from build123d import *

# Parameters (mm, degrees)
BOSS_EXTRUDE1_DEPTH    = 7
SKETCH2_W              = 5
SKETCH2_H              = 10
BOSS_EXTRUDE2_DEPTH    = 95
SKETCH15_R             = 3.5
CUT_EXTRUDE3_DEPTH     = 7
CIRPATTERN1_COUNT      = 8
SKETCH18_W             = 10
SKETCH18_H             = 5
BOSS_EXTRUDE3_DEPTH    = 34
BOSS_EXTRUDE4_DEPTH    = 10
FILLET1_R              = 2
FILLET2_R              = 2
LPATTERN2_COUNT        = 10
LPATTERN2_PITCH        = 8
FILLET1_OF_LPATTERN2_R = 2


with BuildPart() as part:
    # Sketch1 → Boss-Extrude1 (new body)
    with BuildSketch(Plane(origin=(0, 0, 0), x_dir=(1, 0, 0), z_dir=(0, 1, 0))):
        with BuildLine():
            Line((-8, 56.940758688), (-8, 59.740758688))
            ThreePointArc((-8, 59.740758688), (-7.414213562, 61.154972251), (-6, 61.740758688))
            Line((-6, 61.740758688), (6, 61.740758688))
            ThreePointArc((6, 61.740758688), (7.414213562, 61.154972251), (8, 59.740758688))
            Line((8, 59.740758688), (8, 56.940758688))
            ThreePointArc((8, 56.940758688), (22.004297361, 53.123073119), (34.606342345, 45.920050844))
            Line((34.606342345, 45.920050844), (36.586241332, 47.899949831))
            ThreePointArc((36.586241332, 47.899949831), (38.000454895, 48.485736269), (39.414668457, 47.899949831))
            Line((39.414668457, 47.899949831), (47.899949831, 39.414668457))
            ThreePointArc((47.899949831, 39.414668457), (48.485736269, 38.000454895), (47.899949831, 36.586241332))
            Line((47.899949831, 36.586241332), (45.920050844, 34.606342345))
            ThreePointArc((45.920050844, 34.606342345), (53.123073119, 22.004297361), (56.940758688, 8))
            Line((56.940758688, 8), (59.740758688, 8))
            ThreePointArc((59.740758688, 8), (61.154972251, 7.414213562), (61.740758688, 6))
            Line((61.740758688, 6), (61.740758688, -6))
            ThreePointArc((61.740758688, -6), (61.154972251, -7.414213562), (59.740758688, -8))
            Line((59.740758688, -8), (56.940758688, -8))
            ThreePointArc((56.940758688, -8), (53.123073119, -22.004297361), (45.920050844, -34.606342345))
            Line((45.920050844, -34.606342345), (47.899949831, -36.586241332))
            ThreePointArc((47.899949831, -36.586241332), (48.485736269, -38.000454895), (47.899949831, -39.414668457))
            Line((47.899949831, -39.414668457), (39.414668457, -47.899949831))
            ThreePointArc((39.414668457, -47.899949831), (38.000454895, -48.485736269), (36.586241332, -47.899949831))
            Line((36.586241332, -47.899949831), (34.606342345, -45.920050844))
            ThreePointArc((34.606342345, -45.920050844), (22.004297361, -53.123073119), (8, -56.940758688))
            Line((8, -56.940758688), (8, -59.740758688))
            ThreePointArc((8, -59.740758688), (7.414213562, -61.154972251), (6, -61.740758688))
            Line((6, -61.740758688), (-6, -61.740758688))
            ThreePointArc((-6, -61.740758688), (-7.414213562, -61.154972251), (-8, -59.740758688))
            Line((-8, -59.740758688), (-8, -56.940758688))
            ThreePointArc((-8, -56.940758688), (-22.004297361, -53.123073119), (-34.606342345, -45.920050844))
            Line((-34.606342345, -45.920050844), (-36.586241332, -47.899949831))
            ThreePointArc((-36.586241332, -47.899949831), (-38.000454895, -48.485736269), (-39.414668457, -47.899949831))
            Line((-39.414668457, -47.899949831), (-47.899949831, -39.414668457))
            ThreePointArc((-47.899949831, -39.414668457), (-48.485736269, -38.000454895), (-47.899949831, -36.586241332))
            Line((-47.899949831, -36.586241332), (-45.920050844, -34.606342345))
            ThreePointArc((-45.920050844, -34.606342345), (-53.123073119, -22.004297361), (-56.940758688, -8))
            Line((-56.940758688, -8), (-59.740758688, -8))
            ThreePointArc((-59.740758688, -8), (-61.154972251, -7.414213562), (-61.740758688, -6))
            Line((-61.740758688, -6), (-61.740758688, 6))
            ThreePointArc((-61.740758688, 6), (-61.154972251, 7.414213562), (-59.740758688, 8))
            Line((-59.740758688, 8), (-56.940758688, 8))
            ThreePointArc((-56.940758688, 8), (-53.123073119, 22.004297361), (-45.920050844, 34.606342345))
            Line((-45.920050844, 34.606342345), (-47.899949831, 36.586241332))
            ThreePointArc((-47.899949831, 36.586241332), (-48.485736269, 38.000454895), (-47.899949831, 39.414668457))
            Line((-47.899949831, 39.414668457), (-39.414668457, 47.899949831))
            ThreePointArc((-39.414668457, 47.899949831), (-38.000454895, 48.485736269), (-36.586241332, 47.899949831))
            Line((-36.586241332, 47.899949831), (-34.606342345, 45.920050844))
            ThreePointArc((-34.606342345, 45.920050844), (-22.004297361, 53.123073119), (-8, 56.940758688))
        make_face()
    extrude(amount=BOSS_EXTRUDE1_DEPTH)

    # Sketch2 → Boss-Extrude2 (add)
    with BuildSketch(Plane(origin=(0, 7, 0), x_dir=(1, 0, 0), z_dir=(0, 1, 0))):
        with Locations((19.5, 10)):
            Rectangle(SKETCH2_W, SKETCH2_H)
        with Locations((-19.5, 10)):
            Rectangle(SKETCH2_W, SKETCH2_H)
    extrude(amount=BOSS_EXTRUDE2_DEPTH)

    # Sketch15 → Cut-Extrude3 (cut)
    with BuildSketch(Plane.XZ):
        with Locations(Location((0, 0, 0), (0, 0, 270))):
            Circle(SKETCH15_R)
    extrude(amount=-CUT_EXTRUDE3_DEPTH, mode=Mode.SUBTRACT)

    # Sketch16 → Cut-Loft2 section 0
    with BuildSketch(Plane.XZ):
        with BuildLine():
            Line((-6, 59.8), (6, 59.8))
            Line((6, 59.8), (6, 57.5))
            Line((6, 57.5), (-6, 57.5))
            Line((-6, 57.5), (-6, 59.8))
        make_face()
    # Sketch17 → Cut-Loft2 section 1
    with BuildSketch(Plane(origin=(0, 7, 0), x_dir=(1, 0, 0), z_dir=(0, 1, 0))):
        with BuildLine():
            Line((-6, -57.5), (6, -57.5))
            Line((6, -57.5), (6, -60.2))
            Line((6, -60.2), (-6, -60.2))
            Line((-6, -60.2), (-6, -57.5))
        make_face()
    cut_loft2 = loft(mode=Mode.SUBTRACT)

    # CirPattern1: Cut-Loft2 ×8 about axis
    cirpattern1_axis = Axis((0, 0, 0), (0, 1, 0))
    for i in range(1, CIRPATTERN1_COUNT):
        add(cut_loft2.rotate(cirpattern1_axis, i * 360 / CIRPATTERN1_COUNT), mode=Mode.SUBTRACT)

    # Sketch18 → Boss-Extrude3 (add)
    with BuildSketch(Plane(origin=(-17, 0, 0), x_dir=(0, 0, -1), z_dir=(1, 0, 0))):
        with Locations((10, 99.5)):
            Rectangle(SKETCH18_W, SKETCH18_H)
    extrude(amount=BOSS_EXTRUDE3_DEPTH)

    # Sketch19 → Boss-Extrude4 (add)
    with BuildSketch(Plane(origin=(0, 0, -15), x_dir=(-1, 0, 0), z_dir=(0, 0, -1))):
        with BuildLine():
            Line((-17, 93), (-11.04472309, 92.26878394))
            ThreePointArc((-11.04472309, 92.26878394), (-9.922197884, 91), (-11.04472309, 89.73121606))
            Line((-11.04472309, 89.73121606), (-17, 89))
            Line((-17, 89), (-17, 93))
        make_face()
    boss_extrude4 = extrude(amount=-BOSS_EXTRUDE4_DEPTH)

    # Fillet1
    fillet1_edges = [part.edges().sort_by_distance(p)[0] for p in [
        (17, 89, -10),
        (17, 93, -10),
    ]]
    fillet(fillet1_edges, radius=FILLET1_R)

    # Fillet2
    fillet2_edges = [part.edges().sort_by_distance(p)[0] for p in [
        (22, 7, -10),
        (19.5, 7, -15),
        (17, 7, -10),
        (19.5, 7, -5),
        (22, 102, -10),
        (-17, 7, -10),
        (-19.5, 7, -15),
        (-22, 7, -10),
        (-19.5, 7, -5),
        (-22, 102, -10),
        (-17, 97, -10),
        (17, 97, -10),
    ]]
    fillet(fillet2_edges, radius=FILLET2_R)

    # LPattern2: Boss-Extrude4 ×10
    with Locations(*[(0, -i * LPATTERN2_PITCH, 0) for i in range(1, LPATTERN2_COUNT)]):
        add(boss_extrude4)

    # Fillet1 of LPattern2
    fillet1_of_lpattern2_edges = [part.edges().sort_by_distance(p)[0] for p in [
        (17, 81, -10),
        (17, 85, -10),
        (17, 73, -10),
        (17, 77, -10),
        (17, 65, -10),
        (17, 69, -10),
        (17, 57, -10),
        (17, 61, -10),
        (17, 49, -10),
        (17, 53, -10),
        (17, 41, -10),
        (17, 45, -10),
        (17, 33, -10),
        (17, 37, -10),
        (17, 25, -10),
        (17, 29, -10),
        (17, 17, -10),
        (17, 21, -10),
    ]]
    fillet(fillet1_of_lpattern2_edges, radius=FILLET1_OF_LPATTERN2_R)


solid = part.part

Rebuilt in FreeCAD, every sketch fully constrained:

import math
import FreeCAD as App
import Part
import Sketcher
Q = App.Units.Quantity


def edges_at(feature, points):
    """Names of the edges that pass closest to the given points."""
    edges = feature.Shape.Edges
    near = lambda p: min(range(len(edges)), key=lambda i: edges[i].distToShape(Part.Vertex(*p))[0])
    return sorted({f"Edge{near(p) + 1}" for p in points})

doc = App.newDocument("Part")
body = doc.addObject("PartDesign::Body", "Body")

# Sketch on XZ plane
sketch1 = body.newObject("Sketcher::SketchObject", "Sketch")
sketch1.AttachmentSupport = (doc.getObject("XZ_Plane"), [""])
sketch1.MapMode = "FlatFace"
sketch1.addGeometry([
    Part.LineSegment(App.Vector(-8, -59.740759, 0), App.Vector(-8, -56.940759, 0)),  # 0
    Part.ArcOfCircle(Part.Circle(App.Vector(0, 0, 0), App.Vector(0, 0, 1), 57.5), math.radians(-127.002469), math.radians(-97.997531)),  # 1
    Part.LineSegment(App.Vector(-34.606342, -45.920051, 0), App.Vector(-36.586241, -47.89995, 0)),  # 2
    Part.ArcOfCircle(Part.Circle(App.Vector(-38.000455, -46.485736, 0), App.Vector(0, 0, 1), 2), math.radians(-135), math.radians(-45)),  # 3
    Part.LineSegment(App.Vector(-39.414668, -47.89995, 0), App.Vector(-47.89995, -39.414668, 0)),  # 4
    Part.ArcOfCircle(Part.Circle(App.Vector(-46.485736, -38.000455, 0), App.Vector(0, 0, 1), 2), math.radians(135), math.radians(225)),  # 5
    Part.LineSegment(App.Vector(-47.89995, -36.586241, 0), App.Vector(-45.920051, -34.606342, 0)),  # 6
    Part.ArcOfCircle(Part.Circle(App.Vector(0, 0, 0), App.Vector(0, 0, 1), 57.5), math.radians(-172.002469), math.radians(-142.997531)),  # 7
    Part.LineSegment(App.Vector(-56.940759, -8, 0), App.Vector(-59.740759, -8, 0)),  # 8
    Part.ArcOfCircle(Part.Circle(App.Vector(-59.740759, -6, 0), App.Vector(0, 0, 1), 2), math.radians(180), math.radians(270)),  # 9
    Part.LineSegment(App.Vector(-61.740759, -6, 0), App.Vector(-61.740759, 6, 0)),  # 10
    Part.ArcOfCircle(Part.Circle(App.Vector(-59.740759, 6, 0), App.Vector(0, 0, 1), 2), math.radians(90), math.radians(180)),  # 11
    Part.LineSegment(App.Vector(-59.740759, 8, 0), App.Vector(-56.940759, 8, 0)),  # 12
    Part.ArcOfCircle(Part.Circle(App.Vector(0, 0, 0), App.Vector(0, 0, 1), 57.5), math.radians(142.997531), math.radians(172.002469)),  # 13
    Part.LineSegment(App.Vector(-45.920051, 34.606342, 0), App.Vector(-47.89995, 36.586241, 0)),  # 14
    Part.ArcOfCircle(Part.Circle(App.Vector(-46.485736, 38.000455, 0), App.Vector(0, 0, 1), 2), math.radians(135), math.radians(225)),  # 15
    Part.LineSegment(App.Vector(-47.89995, 39.414668, 0), App.Vector(-39.414668, 47.89995, 0)),  # 16
    Part.ArcOfCircle(Part.Circle(App.Vector(-38.000455, 46.485736, 0), App.Vector(0, 0, 1), 2), math.radians(45), math.radians(135)),  # 17
    Part.LineSegment(App.Vector(-36.586241, 47.89995, 0), App.Vector(-34.606342, 45.920051, 0)),  # 18
    Part.ArcOfCircle(Part.Circle(App.Vector(0, 0, 0), App.Vector(0, 0, 1), 57.5), math.radians(97.997531), math.radians(127.002469)),  # 19
    Part.LineSegment(App.Vector(-8, 56.940759, 0), App.Vector(-8, 59.740759, 0)),  # 20
    Part.ArcOfCircle(Part.Circle(App.Vector(-6, 59.740759, 0), App.Vector(0, 0, 1), 2), math.radians(90), math.radians(180)),  # 21
    Part.LineSegment(App.Vector(-6, 61.740759, 0), App.Vector(6, 61.740759, 0)),  # 22
    Part.ArcOfCircle(Part.Circle(App.Vector(6, 59.740759, 0), App.Vector(0, 0, 1), 2), math.radians(0), math.radians(90)),  # 23
    Part.LineSegment(App.Vector(8, 59.740759, 0), App.Vector(8, 56.940759, 0)),  # 24
    Part.ArcOfCircle(Part.Circle(App.Vector(0, 0, 0), App.Vector(0, 0, 1), 57.5), math.radians(52.997531), math.radians(82.002469)),  # 25
    Part.LineSegment(App.Vector(34.606342, 45.920051, 0), App.Vector(36.586241, 47.89995, 0)),  # 26
    Part.ArcOfCircle(Part.Circle(App.Vector(38.000455, 46.485736, 0), App.Vector(0, 0, 1), 2), math.radians(45), math.radians(135)),  # 27
    Part.LineSegment(App.Vector(39.414668, 47.89995, 0), App.Vector(47.89995, 39.414668, 0)),  # 28
    Part.ArcOfCircle(Part.Circle(App.Vector(46.485736, 38.000455, 0), App.Vector(0, 0, 1), 2), math.radians(-45), math.radians(45)),  # 29
    Part.LineSegment(App.Vector(47.89995, 36.586241, 0), App.Vector(45.920051, 34.606342, 0)),  # 30
    Part.ArcOfCircle(Part.Circle(App.Vector(0, 0, 0), App.Vector(0, 0, 1), 57.5), math.radians(7.997531), math.radians(37.002469)),  # 31
    Part.LineSegment(App.Vector(56.940759, 8, 0), App.Vector(59.740759, 8, 0)),  # 32
    Part.ArcOfCircle(Part.Circle(App.Vector(59.740759, 6, 0), App.Vector(0, 0, 1), 2), math.radians(0), math.radians(90)),  # 33
    Part.LineSegment(App.Vector(61.740759, 6, 0), App.Vector(61.740759, -6, 0)),  # 34
    Part.ArcOfCircle(Part.Circle(App.Vector(59.740759, -6, 0), App.Vector(0, 0, 1), 2), math.radians(-90), math.radians(0)),  # 35
    Part.LineSegment(App.Vector(59.740759, -8, 0), App.Vector(56.940759, -8, 0)),  # 36
    Part.ArcOfCircle(Part.Circle(App.Vector(0, 0, 0), App.Vector(0, 0, 1), 57.5), math.radians(-37.002469), math.radians(-7.997531)),  # 37
    Part.LineSegment(App.Vector(45.920051, -34.606342, 0), App.Vector(47.89995, -36.586241, 0)),  # 38
    Part.ArcOfCircle(Part.Circle(App.Vector(46.485736, -38.000455, 0), App.Vector(0, 0, 1), 2), math.radians(-45), math.radians(45)),  # 39
    Part.LineSegment(App.Vector(47.89995, -39.414668, 0), App.Vector(39.414668, -47.89995, 0)),  # 40
    Part.ArcOfCircle(Part.Circle(App.Vector(38.000455, -46.485736, 0), App.Vector(0, 0, 1), 2), math.radians(-135), math.radians(-45)),  # 41
    Part.LineSegment(App.Vector(36.586241, -47.89995, 0), App.Vector(34.606342, -45.920051, 0)),  # 42
    Part.ArcOfCircle(Part.Circle(App.Vector(0, 0, 0), App.Vector(0, 0, 1), 57.5), math.radians(-82.002469), math.radians(-52.997531)),  # 43
    Part.LineSegment(App.Vector(8, -56.940759, 0), App.Vector(8, -59.740759, 0)),  # 44
    Part.ArcOfCircle(Part.Circle(App.Vector(6, -59.740759, 0), App.Vector(0, 0, 1), 2), math.radians(-90), math.radians(0)),  # 45
    Part.LineSegment(App.Vector(6, -61.740759, 0), App.Vector(-6, -61.740759, 0)),  # 46
    Part.ArcOfCircle(Part.Circle(App.Vector(-6, -59.740759, 0), App.Vector(0, 0, 1), 2), math.radians(180), math.radians(270)),  # 47
], False)
sketch1.addConstraint([
    Sketcher.Constraint("Coincident", 0, 2, 1, 2),
    Sketcher.Constraint("Coincident", 1, 1, 2, 1),
    Sketcher.Constraint("Tangent", 2, 2, 3, 2),
    Sketcher.Constraint("Tangent", 3, 1, 4, 1),
    Sketcher.Constraint("Tangent", 4, 2, 5, 2),
    Sketcher.Constraint("Tangent", 5, 1, 6, 1),
    Sketcher.Constraint("Coincident", 6, 2, 7, 2),
    Sketcher.Constraint("Coincident", 7, 1, 8, 1),
    Sketcher.Constraint("Tangent", 8, 2, 9, 2),
    Sketcher.Constraint("Tangent", 9, 1, 10, 1),
    Sketcher.Constraint("Tangent", 10, 2, 11, 2),
    Sketcher.Constraint("Tangent", 11, 1, 12, 1),
    Sketcher.Constraint("Coincident", 12, 2, 13, 2),
    Sketcher.Constraint("Coincident", 13, 1, 14, 1),
    Sketcher.Constraint("Tangent", 14, 2, 15, 2),
    Sketcher.Constraint("Tangent", 15, 1, 16, 1),
    Sketcher.Constraint("Tangent", 16, 2, 17, 2),
    Sketcher.Constraint("Tangent", 17, 1, 18, 1),
    Sketcher.Constraint("Coincident", 18, 2, 19, 2),
    Sketcher.Constraint("Coincident", 19, 1, 20, 1),
    Sketcher.Constraint("Tangent", 20, 2, 21, 2),
    Sketcher.Constraint("Tangent", 21, 1, 22, 1),
    Sketcher.Constraint("Tangent", 22, 2, 23, 2),
    Sketcher.Constraint("Tangent", 23, 1, 24, 1),
    Sketcher.Constraint("Coincident", 24, 2, 25, 2),
    Sketcher.Constraint("Coincident", 25, 1, 26, 1),
    Sketcher.Constraint("Tangent", 26, 2, 27, 2),
    Sketcher.Constraint("Tangent", 27, 1, 28, 1),
    Sketcher.Constraint("Tangent", 28, 2, 29, 2),
    Sketcher.Constraint("Tangent", 29, 1, 30, 1),
    Sketcher.Constraint("Coincident", 30, 2, 31, 2),
    Sketcher.Constraint("Coincident", 31, 1, 32, 1),
    Sketcher.Constraint("Tangent", 32, 2, 33, 2),
    Sketcher.Constraint("Tangent", 33, 1, 34, 1),
    Sketcher.Constraint("Tangent", 34, 2, 35, 2),
    Sketcher.Constraint("Tangent", 35, 1, 36, 1),
    Sketcher.Constraint("Coincident", 36, 2, 37, 2),
    Sketcher.Constraint("Coincident", 37, 1, 38, 1),
    Sketcher.Constraint("Tangent", 38, 2, 39, 2),
    Sketcher.Constraint("Tangent", 39, 1, 40, 1),
    Sketcher.Constraint("Tangent", 40, 2, 41, 2),
    Sketcher.Constraint("Tangent", 41, 1, 42, 1),
    Sketcher.Constraint("Coincident", 42, 2, 43, 2),
    Sketcher.Constraint("Coincident", 43, 1, 44, 1),
    Sketcher.Constraint("Tangent", 44, 2, 45, 2),
    Sketcher.Constraint("Tangent", 45, 1, 46, 1),
    Sketcher.Constraint("Tangent", 46, 2, 47, 2),
    Sketcher.Constraint("Tangent", 47, 1, 0, 1),
    Sketcher.Constraint("Vertical", 0),
    Sketcher.Constraint("Horizontal", 8),
    Sketcher.Constraint("Vertical", 10),
    Sketcher.Constraint("Horizontal", 12),
    Sketcher.Constraint("Vertical", 20),
    Sketcher.Constraint("Horizontal", 22),
    Sketcher.Constraint("Vertical", 24),
    Sketcher.Constraint("Horizontal", 32),
    Sketcher.Constraint("Vertical", 34),
    Sketcher.Constraint("Horizontal", 36),
    Sketcher.Constraint("Vertical", 44),
    Sketcher.Constraint("Horizontal", 46),
    Sketcher.Constraint("Coincident", 1, 3, -1, 1),
    Sketcher.Constraint("Coincident", 7, 3, -1, 1),
    Sketcher.Constraint("Coincident", 13, 3, -1, 1),
    Sketcher.Constraint("Coincident", 19, 3, -1, 1),
    Sketcher.Constraint("Coincident", 25, 3, -1, 1),
    Sketcher.Constraint("Coincident", 31, 3, -1, 1),
    Sketcher.Constraint("Coincident", 37, 3, -1, 1),
    Sketcher.Constraint("Coincident", 43, 3, -1, 1),
    Sketcher.Constraint("Equal", 3, 5),
    Sketcher.Constraint("Equal", 1, 7),
    Sketcher.Constraint("Equal", 5, 9),
    Sketcher.Constraint("Equal", 9, 11),
    Sketcher.Constraint("Equal", 7, 13),
    Sketcher.Constraint("Equal", 11, 15),
    Sketcher.Constraint("Equal", 15, 17),
    Sketcher.Constraint("Equal", 13, 19),
    Sketcher.Constraint("Equal", 17, 21),
    Sketcher.Constraint("Equal", 21, 23),
    Sketcher.Constraint("Equal", 19, 25),
    Sketcher.Constraint("Equal", 23, 27),
    Sketcher.Constraint("Equal", 27, 29),
    Sketcher.Constraint("Equal", 25, 31),
    Sketcher.Constraint("Equal", 29, 33),
    Sketcher.Constraint("Equal", 33, 35),
    Sketcher.Constraint("Equal", 31, 37),
    Sketcher.Constraint("Equal", 35, 39),
    Sketcher.Constraint("Equal", 39, 41),
    Sketcher.Constraint("Equal", 37, 43),
    Sketcher.Constraint("Equal", 41, 45),
    Sketcher.Constraint("Equal", 45, 47),
    Sketcher.Constraint("Symmetric", 3, 3, 27, 3, -1, 1),
    Sketcher.Constraint("Symmetric", 5, 3, 29, 3, -1, 1),
    Sketcher.Constraint("Symmetric", 9, 3, 33, 3, -1, 1),
    Sketcher.Constraint("Symmetric", 15, 3, 39, 3, -1, 1),
    Sketcher.Constraint("Symmetric", 17, 3, 41, 3, -1, 1),
    Sketcher.Constraint("Symmetric", 21, 3, 45, 3, -1, 1),
    Sketcher.Constraint("Symmetric", 17, 3, 27, 3, -2),
    Sketcher.Constraint("Symmetric", 15, 3, 29, 3, -2),
    Sketcher.Constraint("Perpendicular", 2, 4),
    Sketcher.Constraint("Perpendicular", 4, 6),
    Sketcher.Constraint("Perpendicular", 6, 14),
    Sketcher.Constraint("Perpendicular", 14, 16),
    Sketcher.Constraint("Perpendicular", 16, 18),
    Sketcher.Constraint("Perpendicular", 18, 26),
    Sketcher.Constraint("Perpendicular", 28, 30),
    Sketcher.Constraint("Perpendicular", 30, 38),
    Sketcher.Constraint("Perpendicular", 40, 42),
    Sketcher.Constraint("Horizontal", 11, 3, 33, 3),
    Sketcher.Constraint("Horizontal", 9, 3, 35, 3),
    Sketcher.Constraint("Horizontal", 19, 1, 24, 2),
    Sketcher.Constraint("Horizontal", 0, 2, 43, 1),
    Sketcher.Constraint("Equal", 36, 0),
    Sketcher.Constraint("Equal", 46, 10),
    Sketcher.Constraint("Equal", 2, 6),
    Sketcher.Constraint("Radius", 3, Q("2 mm")),
    Sketcher.Constraint("Radius", 1, Q("57.5 mm")),
    Sketcher.Constraint("DistanceX", 22, 1, 22, 2, Q("12 mm")),
    Sketcher.Constraint("Distance", 4, Q("12 mm")),
    Sketcher.Constraint("DistanceX", 8, 2, 8, 1, Q("2.8 mm")),
    Sketcher.Constraint("Distance", 2, Q("2.8 mm")),
])
pad1 = body.newObject("PartDesign::Pad", "Pad")
pad1.Profile = sketch1
pad1.Length = 7
pad1.Reversed = True

# Sketch on XZ plane
sketch2 = body.newObject("Sketcher::SketchObject", "Sketch001")
sketch2.AttachmentSupport = (doc.getObject("XZ_Plane"), [""])
sketch2.MapMode = "FlatFace"
sketch2.AttachmentOffset = App.Placement(App.Vector(0, 0, -7), App.Rotation())
sketch2.addGeometry([
    Part.LineSegment(App.Vector(17, -15, 0), App.Vector(17, -5, 0)),  # 0
    Part.LineSegment(App.Vector(17, -5, 0), App.Vector(22, -5, 0)),  # 1
    Part.LineSegment(App.Vector(22, -5, 0), App.Vector(22, -15, 0)),  # 2
    Part.LineSegment(App.Vector(22, -15, 0), App.Vector(17, -15, 0)),  # 3
    Part.LineSegment(App.Vector(-22, -15, 0), App.Vector(-22, -5, 0)),  # 4
    Part.LineSegment(App.Vector(-22, -5, 0), App.Vector(-17, -5, 0)),  # 5
    Part.LineSegment(App.Vector(-17, -5, 0), App.Vector(-17, -15, 0)),  # 6
    Part.LineSegment(App.Vector(-17, -15, 0), App.Vector(-22, -15, 0)),  # 7
], False)
sketch2.addConstraint([
    Sketcher.Constraint("Coincident", 0, 2, 1, 1),
    Sketcher.Constraint("Coincident", 1, 2, 2, 1),
    Sketcher.Constraint("Coincident", 2, 2, 3, 1),
    Sketcher.Constraint("Coincident", 3, 2, 0, 1),
    Sketcher.Constraint("Coincident", 4, 2, 5, 1),
    Sketcher.Constraint("Coincident", 5, 2, 6, 1),
    Sketcher.Constraint("Coincident", 6, 2, 7, 1),
    Sketcher.Constraint("Coincident", 7, 2, 4, 1),
    Sketcher.Constraint("Vertical", 0),
    Sketcher.Constraint("Horizontal", 1),
    Sketcher.Constraint("Vertical", 2),
    Sketcher.Constraint("Horizontal", 3),
    Sketcher.Constraint("Vertical", 4),
    Sketcher.Constraint("Horizontal", 5),
    Sketcher.Constraint("Vertical", 6),
    Sketcher.Constraint("Horizontal", 7),
    Sketcher.Constraint("Symmetric", 1, 2, 4, 2, -2),
    Sketcher.Constraint("Symmetric", 3, 2, 6, 2, -2),
    Sketcher.Constraint("DistanceX", 1, 1, 1, 2, Q("5 mm")),
    Sketcher.Constraint("DistanceY", 0, 1, 0, 2, Q("10 mm")),
    Sketcher.Constraint("DistanceX", -1, 1, 0, 2, Q("17 mm")),
    Sketcher.Constraint("DistanceY", 0, 2, -1, 1, Q("5 mm")),
])
pad2 = body.newObject("PartDesign::Pad", "Pad001")
pad2.Profile = sketch2
pad2.Length = 95
pad2.Reversed = True

# Sketch on XZ plane
sketch3 = body.newObject("Sketcher::SketchObject", "Sketch002")
sketch3.AttachmentSupport = (doc.getObject("XZ_Plane"), [""])
sketch3.MapMode = "FlatFace"
sketch3.addGeometry(Part.Circle(App.Vector(0, 0, 0), App.Vector(0, 0, 1), 3.5), False)
sketch3.addConstraint([
    Sketcher.Constraint("Coincident", 0, 3, -1, 1),
    Sketcher.Constraint("Diameter", 0, Q("7 mm")),
])
pocket1 = body.newObject("PartDesign::Pocket", "Pocket")
pocket1.Profile = sketch3
pocket1.Length = 7

# Sketch on XZ plane
sketch4 = body.newObject("Sketcher::SketchObject", "Sketch003")
sketch4.AttachmentSupport = (doc.getObject("XZ_Plane"), [""])
sketch4.MapMode = "FlatFace"
sketch4.addGeometry([
    Part.LineSegment(App.Vector(6, 59.8, 0), App.Vector(-6, 59.8, 0)),
    Part.LineSegment(App.Vector(-6, 59.8, 0), App.Vector(-6, 57.5, 0)),
    Part.LineSegment(App.Vector(-6, 57.5, 0), App.Vector(6, 57.5, 0)),
    Part.LineSegment(App.Vector(6, 57.5, 0), App.Vector(6, 59.8, 0)),
], False)
sketch4.addConstraint([
    Sketcher.Constraint("Coincident", 0, 2, 1, 1),
    Sketcher.Constraint("Coincident", 1, 2, 2, 1),
    Sketcher.Constraint("Coincident", 2, 2, 3, 1),
    Sketcher.Constraint("Coincident", 3, 2, 0, 1),
    Sketcher.Constraint("Horizontal", 0),
    Sketcher.Constraint("Vertical", 1),
    Sketcher.Constraint("Horizontal", 2),
    Sketcher.Constraint("Vertical", 3),
    Sketcher.Constraint("DistanceX", 0, 2, 0, 1, Q("12 mm")),
    Sketcher.Constraint("DistanceY", 1, 2, 1, 1, Q("2.3 mm")),
    Sketcher.Constraint("DistanceX", 0, 2, -1, 1, Q("6 mm")),
    Sketcher.Constraint("DistanceY", -1, 1, 0, 2, Q("59.8 mm")),
])

# Sketch on XZ plane
sketch5 = body.newObject("Sketcher::SketchObject", "Sketch004")
sketch5.AttachmentSupport = (doc.getObject("XZ_Plane"), [""])
sketch5.MapMode = "FlatFace"
sketch5.AttachmentOffset = App.Placement(App.Vector(0, 0, -7), App.Rotation())
sketch5.addGeometry([
    Part.LineSegment(App.Vector(6, 57.5, 0), App.Vector(-6, 57.5, 0)),
    Part.LineSegment(App.Vector(-6, 57.5, 0), App.Vector(-6, 60.2, 0)),
    Part.LineSegment(App.Vector(-6, 60.2, 0), App.Vector(6, 60.2, 0)),
    Part.LineSegment(App.Vector(6, 60.2, 0), App.Vector(6, 57.5, 0)),
], False)
sketch5.addConstraint([
    Sketcher.Constraint("Coincident", 0, 2, 1, 1),
    Sketcher.Constraint("Coincident", 1, 2, 2, 1),
    Sketcher.Constraint("Coincident", 2, 2, 3, 1),
    Sketcher.Constraint("Coincident", 3, 2, 0, 1),
    Sketcher.Constraint("Horizontal", 0),
    Sketcher.Constraint("Vertical", 1),
    Sketcher.Constraint("Horizontal", 2),
    Sketcher.Constraint("Vertical", 3),
    Sketcher.Constraint("DistanceX", 0, 2, 0, 1, Q("12 mm")),
    Sketcher.Constraint("DistanceY", 1, 1, 1, 2, Q("2.7 mm")),
    Sketcher.Constraint("DistanceX", 0, 2, -1, 1, Q("6 mm")),
    Sketcher.Constraint("DistanceY", -1, 1, 0, 2, Q("57.5 mm")),
])

subtractiveloft = body.newObject("PartDesign::SubtractiveLoft", "SubtractiveLoft")
subtractiveloft.Profile = sketch4
subtractiveloft.Sections = [sketch5]
doc.recompute()

polarpattern = body.newObject("PartDesign::PolarPattern", "PolarPattern")
polarpattern.Originals = [subtractiveloft]
polarpattern.Axis = (doc.getObject("Y_Axis"), [""])
polarpattern.Angle = 360
polarpattern.Occurrences = 8
body.Tip = polarpattern

# Sketch on YZ plane
sketch6 = body.newObject("Sketcher::SketchObject", "Sketch005")
sketch6.AttachmentSupport = (doc.getObject("YZ_Plane"), [""])
sketch6.MapMode = "FlatFace"
sketch6.AttachmentOffset = App.Placement(App.Vector(0, 0, -17), App.Rotation())
sketch6.addGeometry([
    Part.LineSegment(App.Vector(102, -5, 0), App.Vector(97, -5, 0)),
    Part.LineSegment(App.Vector(97, -5, 0), App.Vector(97, -15, 0)),
    Part.LineSegment(App.Vector(97, -15, 0), App.Vector(102, -15, 0)),
    Part.LineSegment(App.Vector(102, -15, 0), App.Vector(102, -5, 0)),
], False)
sketch6.addConstraint([
    Sketcher.Constraint("Coincident", 0, 2, 1, 1),
    Sketcher.Constraint("Coincident", 1, 2, 2, 1),
    Sketcher.Constraint("Coincident", 2, 2, 3, 1),
    Sketcher.Constraint("Coincident", 3, 2, 0, 1),
    Sketcher.Constraint("Horizontal", 0),
    Sketcher.Constraint("Vertical", 1),
    Sketcher.Constraint("Horizontal", 2),
    Sketcher.Constraint("Vertical", 3),
    Sketcher.Constraint("DistanceX", 0, 2, 0, 1, Q("5 mm")),
    Sketcher.Constraint("DistanceY", 1, 2, 1, 1, Q("10 mm")),
    Sketcher.Constraint("DistanceX", -1, 1, 0, 2, Q("97 mm")),
    Sketcher.Constraint("DistanceY", 0, 2, -1, 1, Q("5 mm")),
])
pad3 = body.newObject("PartDesign::Pad", "Pad002")
pad3.Profile = sketch6
pad3.Length = 34

# Sketch on XY plane
sketch7 = body.newObject("Sketcher::SketchObject", "Sketch006")
sketch7.AttachmentSupport = (doc.getObject("XY_Plane"), [""])
sketch7.MapMode = "FlatFace"
sketch7.AttachmentOffset = App.Placement(App.Vector(0, 0, -15), App.Rotation())
sketch7.addGeometry([
    Part.LineSegment(App.Vector(11.044723, 92.268784, 0), App.Vector(17, 93, 0)),
    Part.LineSegment(App.Vector(17, 93, 0), App.Vector(17, 89, 0)),
    Part.LineSegment(App.Vector(17, 89, 0), App.Vector(11.044723, 89.731216, 0)),
    Part.ArcOfCircle(Part.Circle(App.Vector(11.20051, 91, 0), App.Vector(0, 0, 1), 1.278312), math.radians(97), math.radians(263)),
], False)
sketch7.addConstraint([
    Sketcher.Constraint("Coincident", 0, 2, 1, 1),
    Sketcher.Constraint("Coincident", 1, 2, 2, 1),
    Sketcher.Constraint("Tangent", 2, 2, 3, 2),
    Sketcher.Constraint("Tangent", 3, 1, 0, 1),
    Sketcher.Constraint("Vertical", 1),
    Sketcher.Constraint("Vertical", 2, 2, 3, 1),
    Sketcher.Constraint("DistanceY", 1, 2, 1, 1, Q("4 mm")),
    Sketcher.Constraint("Angle", 0, Q("7 deg")),
    Sketcher.Constraint("Distance", 0, Q("6 mm")),
    Sketcher.Constraint("DistanceY", -1, 1, 3, 3, Q("91 mm")),
    Sketcher.Constraint("DistanceX", -1, 1, 0, 2, Q("17 mm")),
])
pad4 = body.newObject("PartDesign::Pad", "Pad003")
pad4.Profile = sketch7
pad4.Length = 10
doc.recompute()

fillet = body.newObject("PartDesign::Fillet", "Fillet")
fillet.Base = (pad4, edges_at(pad4, [(17, 89, -10), (17, 93, -10)]))
fillet.Radius = 2
doc.recompute()

fillet2 = body.newObject("PartDesign::Fillet", "Fillet001")
fillet2.Base = (fillet, edges_at(fillet, [
    (22, 7, -10),
    (19.5, 7, -15),
    (17, 7, -10),
    (19.5, 7, -5),
    (22, 102, -10),
    (-17, 7, -10),
    (-19.5, 7, -15),
    (-22, 7, -10),
    (-19.5, 7, -5),
    (-22, 102, -10),
    (-17, 97, -10),
    (17, 97, -10),
]))
fillet2.Radius = 2
doc.recompute()

linearpattern = body.newObject("PartDesign::LinearPattern", "LinearPattern")
linearpattern.Originals = [pad4]
linearpattern.Direction = (doc.getObject("Y_Axis"), [""])
linearpattern.Mode = "offset"
linearpattern.Offset = 8
linearpattern.Occurrences = 10
linearpattern.Reversed = True
body.Tip = linearpattern
doc.recompute()

fillet3 = body.newObject("PartDesign::Fillet", "Fillet002")
fillet3.Base = (linearpattern, edges_at(linearpattern, [
    (17, 81, -10),
    (17, 85, -10),
    (17, 73, -10),
    (17, 77, -10),
    (17, 65, -10),
    (17, 69, -10),
    (17, 57, -10),
    (17, 61, -10),
    (17, 49, -10),
    (17, 53, -10),
    (17, 41, -10),
    (17, 45, -10),
    (17, 33, -10),
    (17, 37, -10),
    (17, 25, -10),
    (17, 29, -10),
    (17, 17, -10),
    (17, 21, -10),
]))
fillet3.Radius = 2

doc.recompute()
